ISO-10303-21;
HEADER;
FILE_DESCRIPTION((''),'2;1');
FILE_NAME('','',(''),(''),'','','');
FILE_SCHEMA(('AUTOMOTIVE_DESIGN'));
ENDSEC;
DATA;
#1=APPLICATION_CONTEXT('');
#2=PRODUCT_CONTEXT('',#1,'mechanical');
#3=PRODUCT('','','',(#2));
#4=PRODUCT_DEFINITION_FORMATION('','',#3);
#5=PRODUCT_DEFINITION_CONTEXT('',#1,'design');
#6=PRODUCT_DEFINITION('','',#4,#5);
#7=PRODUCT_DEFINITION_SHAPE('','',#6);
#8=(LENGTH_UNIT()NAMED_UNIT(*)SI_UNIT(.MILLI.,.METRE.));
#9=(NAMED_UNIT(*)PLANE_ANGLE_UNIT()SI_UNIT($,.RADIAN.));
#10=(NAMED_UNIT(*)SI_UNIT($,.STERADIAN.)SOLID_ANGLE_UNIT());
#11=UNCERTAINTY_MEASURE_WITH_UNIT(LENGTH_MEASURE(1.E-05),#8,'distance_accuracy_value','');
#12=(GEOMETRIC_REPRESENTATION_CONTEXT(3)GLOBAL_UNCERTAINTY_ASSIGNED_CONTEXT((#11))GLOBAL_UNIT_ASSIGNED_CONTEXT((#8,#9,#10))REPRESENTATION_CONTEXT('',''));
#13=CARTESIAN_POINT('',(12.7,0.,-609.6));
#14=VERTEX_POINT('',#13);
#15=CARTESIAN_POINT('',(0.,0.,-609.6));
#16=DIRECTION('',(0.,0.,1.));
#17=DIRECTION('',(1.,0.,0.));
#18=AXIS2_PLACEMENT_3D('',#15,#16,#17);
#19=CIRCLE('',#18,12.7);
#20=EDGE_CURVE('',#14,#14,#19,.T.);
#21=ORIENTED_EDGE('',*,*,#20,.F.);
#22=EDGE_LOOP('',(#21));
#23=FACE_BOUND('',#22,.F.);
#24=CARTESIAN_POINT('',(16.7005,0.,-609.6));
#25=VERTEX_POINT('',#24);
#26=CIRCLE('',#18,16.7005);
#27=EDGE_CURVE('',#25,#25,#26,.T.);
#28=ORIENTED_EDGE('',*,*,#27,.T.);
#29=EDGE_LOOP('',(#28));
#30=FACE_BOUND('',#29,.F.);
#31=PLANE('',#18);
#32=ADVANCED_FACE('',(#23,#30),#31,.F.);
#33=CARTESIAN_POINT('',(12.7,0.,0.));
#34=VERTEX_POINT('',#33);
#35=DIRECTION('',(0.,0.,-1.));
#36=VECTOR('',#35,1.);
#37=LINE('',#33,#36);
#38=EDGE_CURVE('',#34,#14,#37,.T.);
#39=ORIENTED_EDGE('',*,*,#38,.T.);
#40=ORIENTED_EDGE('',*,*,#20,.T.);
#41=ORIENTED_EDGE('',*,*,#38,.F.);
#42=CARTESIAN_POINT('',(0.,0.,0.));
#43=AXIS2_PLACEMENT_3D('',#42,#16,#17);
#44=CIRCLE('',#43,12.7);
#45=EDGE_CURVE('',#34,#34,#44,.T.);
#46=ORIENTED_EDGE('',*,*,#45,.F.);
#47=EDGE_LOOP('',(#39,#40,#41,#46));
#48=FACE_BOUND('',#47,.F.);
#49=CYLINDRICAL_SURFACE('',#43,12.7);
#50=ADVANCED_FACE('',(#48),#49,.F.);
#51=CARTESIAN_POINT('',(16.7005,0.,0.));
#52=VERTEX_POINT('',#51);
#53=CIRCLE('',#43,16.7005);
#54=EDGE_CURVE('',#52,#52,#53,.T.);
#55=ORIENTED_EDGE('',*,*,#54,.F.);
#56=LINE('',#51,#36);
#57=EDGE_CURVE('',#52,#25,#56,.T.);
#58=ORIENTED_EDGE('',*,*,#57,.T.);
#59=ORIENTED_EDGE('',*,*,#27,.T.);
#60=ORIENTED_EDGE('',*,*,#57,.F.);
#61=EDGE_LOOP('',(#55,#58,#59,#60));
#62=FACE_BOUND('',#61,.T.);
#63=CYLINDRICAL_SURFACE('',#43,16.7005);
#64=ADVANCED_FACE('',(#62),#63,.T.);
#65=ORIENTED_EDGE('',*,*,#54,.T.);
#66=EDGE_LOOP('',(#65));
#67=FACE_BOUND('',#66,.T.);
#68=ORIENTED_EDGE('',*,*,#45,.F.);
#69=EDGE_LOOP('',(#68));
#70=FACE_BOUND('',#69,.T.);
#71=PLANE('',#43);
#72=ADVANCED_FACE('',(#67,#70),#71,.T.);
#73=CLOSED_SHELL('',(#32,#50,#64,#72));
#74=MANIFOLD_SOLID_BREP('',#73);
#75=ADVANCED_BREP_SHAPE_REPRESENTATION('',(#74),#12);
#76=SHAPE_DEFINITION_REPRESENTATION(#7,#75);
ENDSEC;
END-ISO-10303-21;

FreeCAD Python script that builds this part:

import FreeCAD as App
import Part
import Sketcher

V = App.Vector
Q = App.Units.Quantity

doc = App.newDocument("Part")
body = doc.addObject("PartDesign::Body", "Body")

# Sketch on XY plane
sketch1 = doc.addObject("Sketcher::SketchObject", "Sketch")
body.addObject(sketch1)
sketch1.AttachmentSupport = (doc.XY_Plane, [""])
sketch1.MapMode = "FlatFace"
sketch1.addGeometry([
    Part.Circle(V(0, 0, 0), V(0, 0, 1), 17),
    Part.Circle(V(0, 0, 0), V(0, 0, 1), 13),
], False)
sketch1.addConstraint([
    Sketcher.Constraint("Coincident", 0, 3, -1, 1),
    Sketcher.Constraint("Coincident", 1, 3, -1, 1),
    Sketcher.Constraint("Diameter", 1, Q("1 in")),
    Sketcher.Constraint("Diameter", 0, Q("1.315 in")),
])
pad1 = doc.addObject("PartDesign::Pad", "Pad")
body.addObject(pad1)
pad1.Profile = sketch1
pad1.Length = Q("24 in")
pad1.Reversed = True

doc.recompute()
